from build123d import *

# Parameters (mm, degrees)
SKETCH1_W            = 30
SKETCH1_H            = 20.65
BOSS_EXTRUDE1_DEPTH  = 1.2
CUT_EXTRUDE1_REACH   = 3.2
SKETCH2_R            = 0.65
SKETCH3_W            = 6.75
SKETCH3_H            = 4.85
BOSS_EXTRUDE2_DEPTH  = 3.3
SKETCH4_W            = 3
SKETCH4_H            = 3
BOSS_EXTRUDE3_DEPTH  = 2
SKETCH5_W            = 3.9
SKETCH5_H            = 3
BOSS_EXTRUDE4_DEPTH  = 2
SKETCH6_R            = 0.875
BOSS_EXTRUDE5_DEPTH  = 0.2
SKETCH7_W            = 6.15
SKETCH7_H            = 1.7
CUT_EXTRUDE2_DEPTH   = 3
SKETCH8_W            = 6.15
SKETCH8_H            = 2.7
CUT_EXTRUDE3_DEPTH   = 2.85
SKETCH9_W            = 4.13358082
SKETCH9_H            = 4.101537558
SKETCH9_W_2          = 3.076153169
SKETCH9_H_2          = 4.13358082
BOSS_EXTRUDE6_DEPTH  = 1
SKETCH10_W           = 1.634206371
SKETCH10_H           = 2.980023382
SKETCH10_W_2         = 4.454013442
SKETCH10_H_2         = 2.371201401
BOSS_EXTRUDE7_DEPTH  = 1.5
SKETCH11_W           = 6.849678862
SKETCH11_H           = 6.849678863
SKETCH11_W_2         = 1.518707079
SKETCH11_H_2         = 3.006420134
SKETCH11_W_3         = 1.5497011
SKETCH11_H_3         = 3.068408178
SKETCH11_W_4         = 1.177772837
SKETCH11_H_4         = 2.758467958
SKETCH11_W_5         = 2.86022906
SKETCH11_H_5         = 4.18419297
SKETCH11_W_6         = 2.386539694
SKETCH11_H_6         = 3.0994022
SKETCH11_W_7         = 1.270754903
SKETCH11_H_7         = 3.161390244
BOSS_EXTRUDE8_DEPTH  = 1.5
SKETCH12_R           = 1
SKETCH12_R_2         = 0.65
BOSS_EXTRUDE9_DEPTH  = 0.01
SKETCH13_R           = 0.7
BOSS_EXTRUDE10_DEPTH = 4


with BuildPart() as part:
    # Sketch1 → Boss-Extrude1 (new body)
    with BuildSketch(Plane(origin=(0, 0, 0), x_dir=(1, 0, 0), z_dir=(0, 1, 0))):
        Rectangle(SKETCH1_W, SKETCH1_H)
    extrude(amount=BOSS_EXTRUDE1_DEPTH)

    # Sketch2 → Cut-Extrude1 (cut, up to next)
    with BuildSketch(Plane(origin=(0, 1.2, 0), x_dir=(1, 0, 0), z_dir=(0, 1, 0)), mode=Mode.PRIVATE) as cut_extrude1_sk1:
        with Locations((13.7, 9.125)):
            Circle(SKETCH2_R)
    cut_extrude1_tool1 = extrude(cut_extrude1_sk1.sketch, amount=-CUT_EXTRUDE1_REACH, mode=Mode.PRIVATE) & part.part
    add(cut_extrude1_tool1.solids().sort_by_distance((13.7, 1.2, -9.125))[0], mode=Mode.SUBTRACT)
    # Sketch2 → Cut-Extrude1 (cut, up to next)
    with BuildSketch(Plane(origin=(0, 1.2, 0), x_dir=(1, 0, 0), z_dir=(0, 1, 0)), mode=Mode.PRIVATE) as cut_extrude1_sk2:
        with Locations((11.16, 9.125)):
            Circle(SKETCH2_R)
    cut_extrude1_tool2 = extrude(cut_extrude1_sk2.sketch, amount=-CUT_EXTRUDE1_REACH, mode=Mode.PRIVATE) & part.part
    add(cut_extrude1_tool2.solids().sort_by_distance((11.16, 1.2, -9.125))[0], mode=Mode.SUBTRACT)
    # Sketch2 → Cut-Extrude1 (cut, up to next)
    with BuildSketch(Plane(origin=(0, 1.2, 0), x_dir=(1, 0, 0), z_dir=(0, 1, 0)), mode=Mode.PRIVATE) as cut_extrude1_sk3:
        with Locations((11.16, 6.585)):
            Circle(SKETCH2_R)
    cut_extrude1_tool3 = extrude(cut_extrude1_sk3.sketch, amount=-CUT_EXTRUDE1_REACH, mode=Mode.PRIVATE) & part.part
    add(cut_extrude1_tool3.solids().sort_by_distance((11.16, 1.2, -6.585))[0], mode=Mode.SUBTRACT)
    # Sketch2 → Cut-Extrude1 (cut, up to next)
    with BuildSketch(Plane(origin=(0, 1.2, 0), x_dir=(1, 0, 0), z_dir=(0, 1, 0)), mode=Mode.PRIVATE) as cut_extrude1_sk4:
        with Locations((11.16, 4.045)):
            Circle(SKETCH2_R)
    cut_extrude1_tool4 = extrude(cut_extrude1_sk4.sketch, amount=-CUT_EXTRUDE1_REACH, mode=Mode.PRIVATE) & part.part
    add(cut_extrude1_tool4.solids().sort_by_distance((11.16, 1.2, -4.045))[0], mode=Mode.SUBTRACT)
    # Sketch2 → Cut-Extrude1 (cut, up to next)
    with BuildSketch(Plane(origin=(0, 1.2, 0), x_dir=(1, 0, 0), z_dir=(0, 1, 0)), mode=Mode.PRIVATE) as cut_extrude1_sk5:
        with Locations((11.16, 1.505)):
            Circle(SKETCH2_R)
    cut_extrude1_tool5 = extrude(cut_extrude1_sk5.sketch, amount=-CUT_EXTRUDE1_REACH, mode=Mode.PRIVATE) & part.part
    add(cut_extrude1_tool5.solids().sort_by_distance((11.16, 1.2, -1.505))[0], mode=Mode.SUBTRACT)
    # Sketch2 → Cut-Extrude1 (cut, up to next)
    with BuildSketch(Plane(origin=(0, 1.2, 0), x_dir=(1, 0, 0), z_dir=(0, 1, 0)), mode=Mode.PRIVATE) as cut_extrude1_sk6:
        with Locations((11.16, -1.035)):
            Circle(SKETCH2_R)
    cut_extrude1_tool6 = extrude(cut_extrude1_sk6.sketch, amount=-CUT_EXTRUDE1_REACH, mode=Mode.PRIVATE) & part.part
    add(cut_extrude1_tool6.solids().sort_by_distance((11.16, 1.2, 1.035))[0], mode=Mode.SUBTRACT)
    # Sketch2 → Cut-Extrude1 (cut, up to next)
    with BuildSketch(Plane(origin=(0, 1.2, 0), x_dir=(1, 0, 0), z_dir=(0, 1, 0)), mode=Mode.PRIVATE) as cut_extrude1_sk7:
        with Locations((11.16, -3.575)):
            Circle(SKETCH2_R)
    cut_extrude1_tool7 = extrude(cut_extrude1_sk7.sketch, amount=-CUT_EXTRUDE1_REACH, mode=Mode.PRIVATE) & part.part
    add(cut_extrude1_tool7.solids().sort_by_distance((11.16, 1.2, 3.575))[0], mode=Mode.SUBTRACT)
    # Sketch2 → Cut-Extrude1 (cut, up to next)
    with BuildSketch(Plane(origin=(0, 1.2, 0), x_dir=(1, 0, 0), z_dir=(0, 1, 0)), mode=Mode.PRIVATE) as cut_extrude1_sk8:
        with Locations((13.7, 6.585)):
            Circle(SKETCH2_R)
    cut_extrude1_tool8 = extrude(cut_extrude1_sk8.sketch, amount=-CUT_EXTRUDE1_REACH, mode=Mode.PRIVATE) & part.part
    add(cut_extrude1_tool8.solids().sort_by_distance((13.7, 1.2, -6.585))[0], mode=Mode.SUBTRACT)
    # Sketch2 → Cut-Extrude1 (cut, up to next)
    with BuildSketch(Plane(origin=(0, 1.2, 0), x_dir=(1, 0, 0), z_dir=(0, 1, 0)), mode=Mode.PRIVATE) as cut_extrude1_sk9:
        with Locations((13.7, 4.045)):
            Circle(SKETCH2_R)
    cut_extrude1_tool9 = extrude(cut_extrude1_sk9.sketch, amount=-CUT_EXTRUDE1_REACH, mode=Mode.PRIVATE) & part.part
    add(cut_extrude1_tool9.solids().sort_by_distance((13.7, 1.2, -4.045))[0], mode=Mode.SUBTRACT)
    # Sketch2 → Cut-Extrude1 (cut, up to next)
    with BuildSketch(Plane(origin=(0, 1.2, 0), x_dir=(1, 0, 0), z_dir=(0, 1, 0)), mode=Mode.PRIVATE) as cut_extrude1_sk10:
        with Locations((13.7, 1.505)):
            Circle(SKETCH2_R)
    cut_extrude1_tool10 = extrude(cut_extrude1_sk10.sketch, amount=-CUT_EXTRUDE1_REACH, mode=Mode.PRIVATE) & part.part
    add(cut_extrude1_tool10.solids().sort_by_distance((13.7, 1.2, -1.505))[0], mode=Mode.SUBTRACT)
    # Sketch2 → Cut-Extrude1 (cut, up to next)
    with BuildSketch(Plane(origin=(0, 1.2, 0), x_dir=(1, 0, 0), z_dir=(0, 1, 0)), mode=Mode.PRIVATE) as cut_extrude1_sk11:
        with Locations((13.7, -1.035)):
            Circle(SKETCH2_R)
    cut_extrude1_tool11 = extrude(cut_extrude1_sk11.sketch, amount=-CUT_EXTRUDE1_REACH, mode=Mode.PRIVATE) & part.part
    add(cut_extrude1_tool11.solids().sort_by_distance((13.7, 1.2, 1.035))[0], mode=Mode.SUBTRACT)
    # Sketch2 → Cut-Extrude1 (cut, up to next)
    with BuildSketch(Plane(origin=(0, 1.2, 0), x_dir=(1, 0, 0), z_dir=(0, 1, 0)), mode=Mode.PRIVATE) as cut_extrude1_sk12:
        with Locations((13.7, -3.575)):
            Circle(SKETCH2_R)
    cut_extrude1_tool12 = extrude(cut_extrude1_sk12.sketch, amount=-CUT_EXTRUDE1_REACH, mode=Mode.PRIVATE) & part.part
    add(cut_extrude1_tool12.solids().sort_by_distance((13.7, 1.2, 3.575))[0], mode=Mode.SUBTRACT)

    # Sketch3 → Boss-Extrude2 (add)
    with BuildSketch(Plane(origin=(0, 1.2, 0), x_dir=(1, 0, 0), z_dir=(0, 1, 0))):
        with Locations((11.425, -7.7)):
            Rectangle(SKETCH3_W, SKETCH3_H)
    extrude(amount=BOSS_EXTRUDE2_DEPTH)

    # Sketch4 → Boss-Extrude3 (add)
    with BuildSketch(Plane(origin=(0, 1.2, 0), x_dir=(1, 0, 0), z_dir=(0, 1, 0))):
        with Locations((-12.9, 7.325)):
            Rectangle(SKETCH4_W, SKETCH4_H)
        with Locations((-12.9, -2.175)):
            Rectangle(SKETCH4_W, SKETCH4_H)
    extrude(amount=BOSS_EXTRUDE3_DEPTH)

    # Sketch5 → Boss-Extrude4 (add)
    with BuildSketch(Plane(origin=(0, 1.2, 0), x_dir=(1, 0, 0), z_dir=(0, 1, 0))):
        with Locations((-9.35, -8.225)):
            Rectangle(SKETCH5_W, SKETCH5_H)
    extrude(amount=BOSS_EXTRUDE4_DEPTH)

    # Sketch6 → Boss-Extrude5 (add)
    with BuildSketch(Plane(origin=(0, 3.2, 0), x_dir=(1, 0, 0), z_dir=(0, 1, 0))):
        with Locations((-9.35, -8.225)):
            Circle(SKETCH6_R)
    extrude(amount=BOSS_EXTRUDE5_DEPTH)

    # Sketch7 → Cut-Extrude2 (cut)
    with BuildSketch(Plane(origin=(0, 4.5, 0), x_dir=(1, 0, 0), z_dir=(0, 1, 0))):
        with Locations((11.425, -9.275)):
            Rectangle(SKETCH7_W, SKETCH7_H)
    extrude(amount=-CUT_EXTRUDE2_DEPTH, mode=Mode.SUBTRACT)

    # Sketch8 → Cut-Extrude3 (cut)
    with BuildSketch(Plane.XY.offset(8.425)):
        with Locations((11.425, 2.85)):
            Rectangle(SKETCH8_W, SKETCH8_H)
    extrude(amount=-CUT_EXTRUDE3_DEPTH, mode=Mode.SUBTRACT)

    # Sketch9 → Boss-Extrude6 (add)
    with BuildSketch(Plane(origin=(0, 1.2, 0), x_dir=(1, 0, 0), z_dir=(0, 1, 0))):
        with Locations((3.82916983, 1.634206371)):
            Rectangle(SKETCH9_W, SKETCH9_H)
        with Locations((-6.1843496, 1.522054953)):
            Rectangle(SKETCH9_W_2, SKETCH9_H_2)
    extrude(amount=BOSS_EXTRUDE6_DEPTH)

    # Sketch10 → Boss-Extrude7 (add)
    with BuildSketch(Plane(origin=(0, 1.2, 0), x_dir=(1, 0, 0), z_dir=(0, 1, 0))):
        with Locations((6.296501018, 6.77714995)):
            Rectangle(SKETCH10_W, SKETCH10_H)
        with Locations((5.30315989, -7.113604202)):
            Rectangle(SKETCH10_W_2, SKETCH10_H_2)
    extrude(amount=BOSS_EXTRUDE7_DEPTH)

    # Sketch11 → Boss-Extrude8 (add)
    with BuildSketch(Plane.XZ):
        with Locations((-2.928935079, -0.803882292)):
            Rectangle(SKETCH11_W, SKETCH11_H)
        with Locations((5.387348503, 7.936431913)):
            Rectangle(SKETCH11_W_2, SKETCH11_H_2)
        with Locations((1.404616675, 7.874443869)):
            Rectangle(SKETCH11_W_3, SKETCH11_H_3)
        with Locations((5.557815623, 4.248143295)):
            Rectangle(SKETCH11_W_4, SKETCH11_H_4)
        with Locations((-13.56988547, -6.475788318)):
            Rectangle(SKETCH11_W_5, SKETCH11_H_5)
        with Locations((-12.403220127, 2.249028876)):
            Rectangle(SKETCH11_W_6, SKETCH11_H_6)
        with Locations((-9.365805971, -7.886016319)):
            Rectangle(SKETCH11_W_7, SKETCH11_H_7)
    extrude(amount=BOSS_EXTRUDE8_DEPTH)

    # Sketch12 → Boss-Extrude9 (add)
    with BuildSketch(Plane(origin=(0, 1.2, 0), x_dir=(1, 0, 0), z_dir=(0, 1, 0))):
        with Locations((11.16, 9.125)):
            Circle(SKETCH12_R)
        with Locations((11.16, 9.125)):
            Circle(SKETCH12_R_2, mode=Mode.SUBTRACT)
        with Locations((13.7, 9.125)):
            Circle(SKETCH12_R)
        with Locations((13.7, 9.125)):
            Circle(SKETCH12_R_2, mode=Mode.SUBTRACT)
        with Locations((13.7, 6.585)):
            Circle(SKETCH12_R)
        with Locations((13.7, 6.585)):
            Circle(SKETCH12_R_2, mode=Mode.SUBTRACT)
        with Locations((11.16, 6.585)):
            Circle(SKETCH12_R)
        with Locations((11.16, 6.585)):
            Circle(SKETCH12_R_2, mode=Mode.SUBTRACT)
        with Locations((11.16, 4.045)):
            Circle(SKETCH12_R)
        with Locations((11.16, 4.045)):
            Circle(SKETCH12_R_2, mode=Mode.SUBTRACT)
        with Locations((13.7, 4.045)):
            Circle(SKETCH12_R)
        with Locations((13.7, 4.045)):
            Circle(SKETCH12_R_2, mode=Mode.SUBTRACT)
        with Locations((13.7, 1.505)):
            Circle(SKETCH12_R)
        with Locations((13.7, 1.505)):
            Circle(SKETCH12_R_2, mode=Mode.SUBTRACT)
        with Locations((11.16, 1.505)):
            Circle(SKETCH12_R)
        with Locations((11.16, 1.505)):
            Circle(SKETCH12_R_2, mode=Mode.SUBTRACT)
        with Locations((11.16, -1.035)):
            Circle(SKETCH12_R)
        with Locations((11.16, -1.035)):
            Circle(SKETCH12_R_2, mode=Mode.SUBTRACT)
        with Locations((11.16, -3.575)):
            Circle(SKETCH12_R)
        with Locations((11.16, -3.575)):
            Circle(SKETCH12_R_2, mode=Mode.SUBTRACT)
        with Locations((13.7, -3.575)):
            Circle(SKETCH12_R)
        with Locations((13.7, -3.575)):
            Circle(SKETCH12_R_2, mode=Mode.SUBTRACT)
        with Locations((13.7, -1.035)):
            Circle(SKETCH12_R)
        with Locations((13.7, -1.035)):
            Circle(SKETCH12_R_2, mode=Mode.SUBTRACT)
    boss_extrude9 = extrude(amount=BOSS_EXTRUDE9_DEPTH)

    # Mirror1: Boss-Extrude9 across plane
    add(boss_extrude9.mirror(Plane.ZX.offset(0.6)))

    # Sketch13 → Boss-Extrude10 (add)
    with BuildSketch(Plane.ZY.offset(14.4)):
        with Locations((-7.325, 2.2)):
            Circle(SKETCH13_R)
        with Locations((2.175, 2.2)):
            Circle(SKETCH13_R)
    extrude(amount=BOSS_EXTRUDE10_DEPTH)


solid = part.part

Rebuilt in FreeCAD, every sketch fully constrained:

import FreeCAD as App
import Part
import Sketcher
from FreeCAD import Vector

doc = App.newDocument("Part")
body = doc.addObject("PartDesign::Body", "Body")

sketch1 = body.newObject("Sketcher::SketchObject", "Sketch")
sketch1.AttachmentSupport = (doc.getObject("XZ_Plane"), [""])
sketch1.MapMode = "FlatFace"
sketch1.addGeometry([
    Part.LineSegment(Vector(-15, -10, 0), Vector(-15, 10, 0)),
    Part.LineSegment(Vector(-15, 10, 0), Vector(15, 10, 0)),
    Part.LineSegment(Vector(15, 10, 0), Vector(15, -10, 0)),
    Part.LineSegment(Vector(15, -10, 0), Vector(-15, -10, 0)),
], False)
sketch1.addConstraint([
    Sketcher.Constraint("Coincident", 0, 2, 1, 1),
    Sketcher.Constraint("Coincident", 1, 2, 2, 1),
    Sketcher.Constraint("Coincident", 2, 2, 3, 1),
    Sketcher.Constraint("Coincident", 3, 2, 0, 1),
    Sketcher.Constraint("Vertical", 0),
    Sketcher.Constraint("Horizontal", 1),
    Sketcher.Constraint("Vertical", 2),
    Sketcher.Constraint("Horizontal", 3),
    Sketcher.Constraint("Symmetric", 0, 2, 2, 2, -1, 1),
    Sketcher.Constraint("DistanceX", 1, 1, 1, 2, 30.0),
    Sketcher.Constraint("DistanceY", 0, 1, 0, 2, 20.65),
])
pad1 = body.newObject("PartDesign::Pad", "Pad")
pad1.Profile = sketch1
pad1.Length = 1.2
pad1.Reversed = True

sketch2 = body.newObject("Sketcher::SketchObject", "Sketch001")
sketch2.AttachmentSupport = (doc.getObject("XZ_Plane"), [""])
sketch2.MapMode = "FlatFace"
sketch2.AttachmentOffset = App.Placement(Vector(0, 0, -1.2), App.Rotation())
sketch2.addGeometry(Part.Circle(Vector(13.7, -9.1, 0), Vector(0, 0, 1), 0.7), False)
sketch2.addConstraint([
    Sketcher.Constraint("Diameter", 0, 1.3),
    Sketcher.Constraint("DistanceX", -1, 1, 0, 3, 13.7),
    Sketcher.Constraint("DistanceY", 0, 3, -1, 1, 9.125),
])
pocket1 = body.newObject("PartDesign::Pocket", "Pocket")
pocket1.Profile = sketch2
pocket1.Type = "UpToFirst"
pocket1.Reversed = True

sketch3 = body.newObject("Sketcher::SketchObject", "Sketch002")
sketch3.AttachmentSupport = (doc.getObject("XZ_Plane"), [""])
sketch3.MapMode = "FlatFace"
sketch3.AttachmentOffset = App.Placement(Vector(0, 0, -1.2), App.Rotation())
sketch3.addGeometry(Part.Circle(Vector(11.2, -9.1, 0), Vector(0, 0, 1), 0.7), False)
sketch3.addConstraint([
    Sketcher.Constraint("Diameter", 0, 1.3),
    Sketcher.Constraint("DistanceX", -1, 1, 0, 3, 11.16),
    Sketcher.Constraint("DistanceY", 0, 3, -1, 1, 9.125),
])
pocket2 = body.newObject("PartDesign::Pocket", "Pocket001")
pocket2.Profile = sketch3
pocket2.Type = "UpToFirst"
pocket2.Reversed = True

sketch4 = body.newObject("Sketcher::SketchObject", "Sketch003")
sketch4.AttachmentSupport = (doc.getObject("XZ_Plane"), [""])
sketch4.MapMode = "FlatFace"
sketch4.AttachmentOffset = App.Placement(Vector(0, 0, -1.2), App.Rotation())
sketch4.addGeometry(Part.Circle(Vector(11.2, -6.6, 0), Vector(0, 0, 1), 0.7), False)
sketch4.addConstraint([
    Sketcher.Constraint("Diameter", 0, 1.3),
    Sketcher.Constraint("DistanceX", -1, 1, 0, 3, 11.16),
    Sketcher.Constraint("DistanceY", 0, 3, -1, 1, 6.585),
])
pocket3 = body.newObject("PartDesign::Pocket", "Pocket002")
pocket3.Profile = sketch4
pocket3.Type = "UpToFirst"
pocket3.Reversed = True

sketch5 = body.newObject("Sketcher::SketchObject", "Sketch004")
sketch5.AttachmentSupport = (doc.getObject("XZ_Plane"), [""])
sketch5.MapMode = "FlatFace"
sketch5.AttachmentOffset = App.Placement(Vector(0, 0, -1.2), App.Rotation())
sketch5.addGeometry(Part.Circle(Vector(11.2, -4, 0), Vector(0, 0, 1), 0.7), False)
sketch5.addConstraint([
    Sketcher.Constraint("Diameter", 0, 1.3),
    Sketcher.Constraint("DistanceX", -1, 1, 0, 3, 11.16),
    Sketcher.Constraint("DistanceY", 0, 3, -1, 1, 4.045),
])
pocket4 = body.newObject("PartDesign::Pocket", "Pocket003")
pocket4.Profile = sketch5
pocket4.Type = "UpToFirst"
pocket4.Reversed = True

sketch6 = body.newObject("Sketcher::SketchObject", "Sketch005")
sketch6.AttachmentSupport = (doc.getObject("XZ_Plane"), [""])
sketch6.MapMode = "FlatFace"
sketch6.AttachmentOffset = App.Placement(Vector(0, 0, -1.2), App.Rotation())
sketch6.addGeometry(Part.Circle(Vector(11.2, -1.5, 0), Vector(0, 0, 1), 0.7), False)
sketch6.addConstraint([
    Sketcher.Constraint("Diameter", 0, 1.3),
    Sketcher.Constraint("DistanceX", -1, 1, 0, 3, 11.16),
    Sketcher.Constraint("DistanceY", 0, 3, -1, 1, 1.505),
])
pocket5 = body.newObject("PartDesign::Pocket", "Pocket004")
pocket5.Profile = sketch6
pocket5.Type = "UpToFirst"
pocket5.Reversed = True

sketch7 = body.newObject("Sketcher::SketchObject", "Sketch006")
sketch7.AttachmentSupport = (doc.getObject("XZ_Plane"), [""])
sketch7.MapMode = "FlatFace"
sketch7.AttachmentOffset = App.Placement(Vector(0, 0, -1.2), App.Rotation())
sketch7.addGeometry(Part.Circle(Vector(11.2, 1, 0), Vector(0, 0, 1), 0.7), False)
sketch7.addConstraint([
    Sketcher.Constraint("Diameter", 0, 1.3),
    Sketcher.Constraint("DistanceX", -1, 1, 0, 3, 11.16),
    Sketcher.Constraint("DistanceY", -1, 1, 0, 3, 1.035),
])
pocket6 = body.newObject("PartDesign::Pocket", "Pocket005")
pocket6.Profile = sketch7
pocket6.Type = "UpToFirst"
pocket6.Reversed = True

sketch8 = body.newObject("Sketcher::SketchObject", "Sketch007")
sketch8.AttachmentSupport = (doc.getObject("XZ_Plane"), [""])
sketch8.MapMode = "FlatFace"
sketch8.AttachmentOffset = App.Placement(Vector(0, 0, -1.2), App.Rotation())
sketch8.addGeometry(Part.Circle(Vector(11.2, 3.6, 0), Vector(0, 0, 1), 0.7), False)
sketch8.addConstraint([
    Sketcher.Constraint("Diameter", 0, 1.3),
    Sketcher.Constraint("DistanceX", -1, 1, 0, 3, 11.16),
    Sketcher.Constraint("DistanceY", -1, 1, 0, 3, 3.575),
])
pocket7 = body.newObject("PartDesign::Pocket", "Pocket006")
pocket7.Profile = sketch8
pocket7.Type = "UpToFirst"
pocket7.Reversed = True

sketch9 = body.newObject("Sketcher::SketchObject", "Sketch008")
sketch9.AttachmentSupport = (doc.getObject("XZ_Plane"), [""])
sketch9.MapMode = "FlatFace"
sketch9.AttachmentOffset = App.Placement(Vector(0, 0, -1.2), App.Rotation())
sketch9.addGeometry(Part.Circle(Vector(13.7, -6.6, 0), Vector(0, 0, 1), 0.7), False)
sketch9.addConstraint([
    Sketcher.Constraint("Diameter", 0, 1.3),
    Sketcher.Constraint("DistanceX", -1, 1, 0, 3, 13.7),
    Sketcher.Constraint("DistanceY", 0, 3, -1, 1, 6.585),
])
pocket8 = body.newObject("PartDesign::Pocket", "Pocket007")
pocket8.Profile = sketch9
pocket8.Type = "UpToFirst"
pocket8.Reversed = True

sketch10 = body.newObject("Sketcher::SketchObject", "Sketch009")
sketch10.AttachmentSupport = (doc.getObject("XZ_Plane"), [""])
sketch10.MapMode = "FlatFace"
sketch10.AttachmentOffset = App.Placement(Vector(0, 0, -1.2), App.Rotation())
sketch10.addGeometry(Part.Circle(Vector(13.7, -4, 0), Vector(0, 0, 1), 0.7), False)
sketch10.addConstraint([
    Sketcher.Constraint("Diameter", 0, 1.3),
    Sketcher.Constraint("DistanceX", -1, 1, 0, 3, 13.7),
    Sketcher.Constraint("DistanceY", 0, 3, -1, 1, 4.045),
])
pocket9 = body.newObject("PartDesign::Pocket", "Pocket008")
pocket9.Profile = sketch10
pocket9.Type = "UpToFirst"
pocket9.Reversed = True

sketch11 = body.newObject("Sketcher::SketchObject", "Sketch010")
sketch11.AttachmentSupport = (doc.getObject("XZ_Plane"), [""])
sketch11.MapMode = "FlatFace"
sketch11.AttachmentOffset = App.Placement(Vector(0, 0, -1.2), App.Rotation())
sketch11.addGeometry(Part.Circle(Vector(13.7, -1.5, 0), Vector(0, 0, 1), 0.7), False)
sketch11.addConstraint([
    Sketcher.Constraint("Diameter", 0, 1.3),
    Sketcher.Constraint("DistanceX", -1, 1, 0, 3, 13.7),
    Sketcher.Constraint("DistanceY", 0, 3, -1, 1, 1.505),
])
pocket10 = body.newObject("PartDesign::Pocket", "Pocket009")
pocket10.Profile = sketch11
pocket10.Type = "UpToFirst"
pocket10.Reversed = True

sketch12 = body.newObject("Sketcher::SketchObject", "Sketch011")
sketch12.AttachmentSupport = (doc.getObject("XZ_Plane"), [""])
sketch12.MapMode = "FlatFace"
sketch12.AttachmentOffset = App.Placement(Vector(0, 0, -1.2), App.Rotation())
sketch12.addGeometry(Part.Circle(Vector(13.7, 1, 0), Vector(0, 0, 1), 0.7), False)
sketch12.addConstraint([
    Sketcher.Constraint("Diameter", 0, 1.3),
    Sketcher.Constraint("DistanceX", -1, 1, 0, 3, 13.7),
    Sketcher.Constraint("DistanceY", -1, 1, 0, 3, 1.035),
])
pocket11 = body.newObject("PartDesign::Pocket", "Pocket010")
pocket11.Profile = sketch12
pocket11.Type = "UpToFirst"
pocket11.Reversed = True

sketch13 = body.newObject("Sketcher::SketchObject", "Sketch012")
sketch13.AttachmentSupport = (doc.getObject("XZ_Plane"), [""])
sketch13.MapMode = "FlatFace"
sketch13.AttachmentOffset = App.Placement(Vector(0, 0, -1.2), App.Rotation())
sketch13.addGeometry(Part.Circle(Vector(13.7, 3.6, 0), Vector(0, 0, 1), 0.7), False)
sketch13.addConstraint([
    Sketcher.Constraint("Diameter", 0, 1.3),
    Sketcher.Constraint("DistanceX", -1, 1, 0, 3, 13.7),
    Sketcher.Constraint("DistanceY", -1, 1, 0, 3, 3.575),
])
pocket12 = body.newObject("PartDesign::Pocket", "Pocket011")
pocket12.Profile = sketch13
pocket12.Type = "UpToFirst"
pocket12.Reversed = True

sketch14 = body.newObject("Sketcher::SketchObject", "Sketch013")
sketch14.AttachmentSupport = (doc.getObject("XZ_Plane"), [""])
sketch14.MapMode = "FlatFace"
sketch14.AttachmentOffset = App.Placement(Vector(0, 0, -1.2), App.Rotation())
sketch14.addGeometry([
    Part.LineSegment(Vector(8.1, 5.3, 0), Vector(8.1, 10.1, 0)),
    Part.LineSegment(Vector(8.1, 10.1, 0), Vector(14.8, 10.1, 0)),
    Part.LineSegment(Vector(14.8, 10.1, 0), Vector(14.8, 5.3, 0)),
    Part.LineSegment(Vector(14.8, 5.3, 0), Vector(8.1, 5.3, 0)),
], False)
sketch14.addConstraint([
    Sketcher.Constraint("Coincident", 0, 2, 1, 1),
    Sketcher.Constraint("Coincident", 1, 2, 2, 1),
    Sketcher.Constraint("Coincident", 2, 2, 3, 1),
    Sketcher.Constraint("Coincident", 3, 2, 0, 1),
    Sketcher.Constraint("Vertical", 0),
    Sketcher.Constraint("Horizontal", 1),
    Sketcher.Constraint("Vertical", 2),
    Sketcher.Constraint("Horizontal", 3),
    Sketcher.Constraint("DistanceX", 1, 1, 1, 2, 6.75),
    Sketcher.Constraint("DistanceY", 0, 1, 0, 2, 4.85),
    Sketcher.Constraint("DistanceX", -1, 1, 1, 2, 14.8),
    Sketcher.Constraint("DistanceY", -1, 1, 0, 2, 10.125),
])
pad2 = body.newObject("PartDesign::Pad", "Pad001")
pad2.Profile = sketch14
pad2.Length = 3.3
pad2.Reversed = True

sketch15 = body.newObject("Sketcher::SketchObject", "Sketch014")
sketch15.AttachmentSupport = (doc.getObject("XZ_Plane"), [""])
sketch15.MapMode = "FlatFace"
sketch15.AttachmentOffset = App.Placement(Vector(0, 0, -1.2), App.Rotation())
sketch15.addGeometry([
    Part.LineSegment(Vector(-14.4, -8.8, 0), Vector(-14.4, -5.8, 0)),
    Part.LineSegment(Vector(-14.4, -5.8, 0), Vector(-11.4, -5.8, 0)),
    Part.LineSegment(Vector(-11.4, -5.8, 0), Vector(-11.4, -8.8, 0)),
    Part.LineSegment(Vector(-11.4, -8.8, 0), Vector(-14.4, -8.8, 0)),
    Part.LineSegment(Vector(-14.4, 0.7, 0), Vector(-14.4, 3.7, 0)),
    Part.LineSegment(Vector(-14.4, 3.7, 0), Vector(-11.4, 3.7, 0)),
    Part.LineSegment(Vector(-11.4, 3.7, 0), Vector(-11.4, 0.7, 0)),
    Part.LineSegment(Vector(-11.4, 0.7, 0), Vector(-14.4, 0.7, 0)),
], False)
sketch15.addConstraint([
    Sketcher.Constraint("Coincident", 0, 2, 1, 1),
    Sketcher.Constraint("Coincident", 1, 2, 2, 1),
    Sketcher.Constraint("Coincident", 2, 2, 3, 1),
    Sketcher.Constraint("Coincident", 3, 2, 0, 1),
    Sketcher.Constraint("Coincident", 4, 2, 5, 1),
    Sketcher.Constraint("Coincident", 5, 2, 6, 1),
    Sketcher.Constraint("Coincident", 6, 2, 7, 1),
    Sketcher.Constraint("Coincident", 7, 2, 4, 1),
    Sketcher.Constraint("Vertical", 0),
    Sketcher.Constraint("Horizontal", 1),
    Sketcher.Constraint("Vertical", 2),
    Sketcher.Constraint("Horizontal", 3),
    Sketcher.Constraint("Vertical", 4),
    Sketcher.Constraint("Horizontal", 5),
    Sketcher.Constraint("Vertical", 6),
    Sketcher.Constraint("Horizontal", 7),
    Sketcher.Constraint("Vertical", 3, 2, 4, 2),
    Sketcher.Constraint("Vertical", 2, 2, 5, 2),
    Sketcher.Constraint("Equal", 7, 0),
    Sketcher.Constraint("Equal", 2, 4),
    Sketcher.Constraint("DistanceX", 1, 1, 1, 2, 3.0),
    Sketcher.Constraint("DistanceX", 0, 2, -1, 1, 14.4),
    Sketcher.Constraint("DistanceY", 0, 2, 4, 2, 9.5),
    Sketcher.Constraint("DistanceY", 0, 2, -1, 1, 5.825),
])
pad3 = body.newObject("PartDesign::Pad", "Pad002")
pad3.Profile = sketch15
pad3.Length = 2
pad3.Reversed = True

sketch16 = body.newObject("Sketcher::SketchObject", "Sketch015")
sketch16.AttachmentSupport = (doc.getObject("XZ_Plane"), [""])
sketch16.MapMode = "FlatFace"
sketch16.AttachmentOffset = App.Placement(Vector(0, 0, -1.2), App.Rotation())
sketch16.addGeometry([
    Part.LineSegment(Vector(-11.3, 6.7, 0), Vector(-11.3, 9.7, 0)),
    Part.LineSegment(Vector(-11.3, 9.7, 0), Vector(-7.4, 9.7, 0)),
    Part.LineSegment(Vector(-7.4, 9.7, 0), Vector(-7.4, 6.7, 0)),
    Part.LineSegment(Vector(-7.4, 6.7, 0), Vector(-11.3, 6.7, 0)),
], False)
sketch16.addConstraint([
    Sketcher.Constraint("Coincident", 0, 2, 1, 1),
    Sketcher.Constraint("Coincident", 1, 2, 2, 1),
    Sketcher.Constraint("Coincident", 2, 2, 3, 1),
    Sketcher.Constraint("Coincident", 3, 2, 0, 1),
    Sketcher.Constraint("Vertical", 0),
    Sketcher.Constraint("Horizontal", 1),
    Sketcher.Constraint("Vertical", 2),
    Sketcher.Constraint("Horizontal", 3),
    Sketcher.Constraint("DistanceY", 0, 1, 0, 2, 3.0),
    Sketcher.Constraint("DistanceX", 1, 1, 1, 2, 3.9),
    Sketcher.Constraint("DistanceX", 0, 2, -1, 1, 11.3),
    Sketcher.Constraint("DistanceY", -1, 1, 0, 2, 9.725),
])
pad4 = body.newObject("PartDesign::Pad", "Pad003")
pad4.Profile = sketch16
pad4.Length = 2
pad4.Reversed = True

sketch17 = body.newObject("Sketcher::SketchObject", "Sketch016")
sketch17.AttachmentSupport = (doc.getObject("XZ_Plane"), [""])
sketch17.MapMode = "FlatFace"
sketch17.AttachmentOffset = App.Placement(Vector(0, 0, -3.2), App.Rotation())
sketch17.addGeometry(Part.Circle(Vector(-9.3, 8.2, 0), Vector(0, 0, 1), 0.9), False)
sketch17.addConstraint([
    Sketcher.Constraint("Diameter", 0, 1.75),
    Sketcher.Constraint("DistanceX", 0, 3, -1, 1, 9.35),
    Sketcher.Constraint("DistanceY", -1, 1, 0, 3, 8.225),
])
pad5 = body.newObject("PartDesign::Pad", "Pad004")
pad5.Profile = sketch17
pad5.Length = 0.2
pad5.Reversed = True

sketch18 = body.newObject("Sketcher::SketchObject", "Sketch017")
sketch18.AttachmentSupport = (doc.getObject("XZ_Plane"), [""])
sketch18.MapMode = "FlatFace"
sketch18.AttachmentOffset = App.Placement(Vector(0, 0, -4.5), App.Rotation())
sketch18.addGeometry([
    Part.LineSegment(Vector(8.3, 8.4, 0), Vector(8.3, 10.1, 0)),
    Part.LineSegment(Vector(8.3, 10.1, 0), Vector(14.5, 10.1, 0)),
    Part.LineSegment(Vector(14.5, 10.1, 0), Vector(14.5, 8.4, 0)),
    Part.LineSegment(Vector(14.5, 8.4, 0), Vector(8.3, 8.4, 0)),
], False)
sketch18.addConstraint([
    Sketcher.Constraint("Coincident", 0, 2, 1, 1),
    Sketcher.Constraint("Coincident", 1, 2, 2, 1),
    Sketcher.Constraint("Coincident", 2, 2, 3, 1),
    Sketcher.Constraint("Coincident", 3, 2, 0, 1),
    Sketcher.Constraint("Vertical", 0),
    Sketcher.Constraint("Horizontal", 1),
    Sketcher.Constraint("Vertical", 2),
    Sketcher.Constraint("Horizontal", 3),
    Sketcher.Constraint("DistanceY", 0, 1, 0, 2, 1.7),
    Sketcher.Constraint("DistanceX", 1, 1, 1, 2, 6.15),
    Sketcher.Constraint("DistanceX", -1, 1, 1, 2, 14.5),
    Sketcher.Constraint("DistanceY", -1, 1, 0, 2, 10.125),
])
pocket13 = body.newObject("PartDesign::Pocket", "Pocket012")
pocket13.Profile = sketch18
pocket13.Length = 3
pocket13.Reversed = True

sketch19 = body.newObject("Sketcher::SketchObject", "Sketch018")
sketch19.AttachmentSupport = (doc.getObject("XY_Plane"), [""])
sketch19.MapMode = "FlatFace"
sketch19.AttachmentOffset = App.Placement(Vector(0, 0, 8.425), App.Rotation())
sketch19.addGeometry([
    Part.LineSegment(Vector(8.3, 4.2, 0), Vector(8.3, 1.5, 0)),
    Part.LineSegment(Vector(8.3, 1.5, 0), Vector(14.5, 1.5, 0)),
    Part.LineSegment(Vector(14.5, 1.5, 0), Vector(14.5, 4.2, 0)),
    Part.LineSegment(Vector(14.5, 4.2, 0), Vector(8.3, 4.2, 0)),
], False)
sketch19.addConstraint([
    Sketcher.Constraint("Coincident", 0, 2, 1, 1),
    Sketcher.Constraint("Coincident", 1, 2, 2, 1),
    Sketcher.Constraint("Coincident", 2, 2, 3, 1),
    Sketcher.Constraint("Coincident", 3, 2, 0, 1),
    Sketcher.Constraint("Vertical", 0),
    Sketcher.Constraint("Horizontal", 1),
    Sketcher.Constraint("Vertical", 2),
    Sketcher.Constraint("Horizontal", 3),
    Sketcher.Constraint("DistanceY", 0, 2, 0, 1, 2.7),
    Sketcher.Constraint("DistanceX", 1, 1, 1, 2, 6.15),
    Sketcher.Constraint("DistanceY", -1, 1, 0, 2, 1.5),
    Sketcher.Constraint("DistanceX", -1, 1, 1, 2, 14.5),
])
pocket14 = body.newObject("PartDesign::Pocket", "Pocket013")
pocket14.Profile = sketch19
pocket14.Length = 2.85

sketch20 = body.newObject("Sketcher::SketchObject", "Sketch019")
sketch20.AttachmentSupport = (doc.getObject("XZ_Plane"), [""])
sketch20.MapMode = "FlatFace"
sketch20.AttachmentOffset = App.Placement(Vector(0, 0, -1.2), App.Rotation())
sketch20.addGeometry([
    Part.LineSegment(Vector(1.8, -3.7, 0), Vector(1.8, 0.4, 0)),
    Part.LineSegment(Vector(1.8, 0.4, 0), Vector(5.9, 0.4, 0)),
    Part.LineSegment(Vector(5.9, 0.4, 0), Vector(5.9, -3.7, 0)),
    Part.LineSegment(Vector(5.9, -3.7, 0), Vector(1.8, -3.7, 0)),
    Part.LineSegment(Vector(-7.7, -3.6, 0), Vector(-7.7, 0.5, 0)),
    Part.LineSegment(Vector(-7.7, 0.5, 0), Vector(-4.6, 0.5, 0)),
    Part.LineSegment(Vector(-4.6, 0.5, 0), Vector(-4.6, -3.6, 0)),
    Part.LineSegment(Vector(-4.6, -3.6, 0), Vector(-7.7, -3.6, 0)),
], False)
sketch20.addConstraint([
    Sketcher.Constraint("Coincident", 0, 2, 1, 1),
    Sketcher.Constraint("Coincident", 1, 2, 2, 1),
    Sketcher.Constraint("Coincident", 2, 2, 3, 1),
    Sketcher.Constraint("Coincident", 3, 2, 0, 1),
    Sketcher.Constraint("Coincident", 4, 2, 5, 1),
    Sketcher.Constraint("Coincident", 5, 2, 6, 1),
    Sketcher.Constraint("Coincident", 6, 2, 7, 1),
    Sketcher.Constraint("Coincident", 7, 2, 4, 1),
    Sketcher.Constraint("Vertical", 0),
    Sketcher.Constraint("Horizontal", 1),
    Sketcher.Constraint("Vertical", 2),
    Sketcher.Constraint("Horizontal", 3),
    Sketcher.Constraint("Vertical", 4),
    Sketcher.Constraint("Horizontal", 5),
    Sketcher.Constraint("Vertical", 6),
    Sketcher.Constraint("Horizontal", 7),
    Sketcher.Constraint("Equal", 3, 4),
    Sketcher.Constraint("DistanceX", 1, 1, 1, 2, 4.133581),
    Sketcher.Constraint("DistanceX", 5, 1, 5, 2, 3.076153),
    Sketcher.Constraint("DistanceY", 0, 1, 0, 2, 4.101538),
    Sketcher.Constraint("DistanceX", -1, 1, 0, 2, 1.762379),
    Sketcher.Constraint("DistanceY", 3, 2, 4, 2, 4.229711),
    Sketcher.Constraint("DistanceY", -1, 1, 0, 2, 0.416562),
    Sketcher.Constraint("DistanceX", 4, 2, -1, 1, 7.722426),
])
pad6 = body.newObject("PartDesign::Pad", "Pad005")
pad6.Profile = sketch20
pad6.Length = 1
pad6.Reversed = True

sketch21 = body.newObject("Sketcher::SketchObject", "Sketch020")
sketch21.AttachmentSupport = (doc.getObject("XZ_Plane"), [""])
sketch21.MapMode = "FlatFace"
sketch21.AttachmentOffset = App.Placement(Vector(0, 0, -1.2), App.Rotation())
sketch21.addGeometry([
    Part.LineSegment(Vector(5.5, -8.3, 0), Vector(5.5, -5.3, 0)),
    Part.LineSegment(Vector(5.5, -5.3, 0), Vector(7.1, -5.3, 0)),
    Part.LineSegment(Vector(7.1, -5.3, 0), Vector(7.1, -8.3, 0)),
    Part.LineSegment(Vector(7.1, -8.3, 0), Vector(5.5, -8.3, 0)),
    Part.LineSegment(Vector(3.1, 5.9, 0), Vector(3.1, 8.3, 0)),
    Part.LineSegment(Vector(3.1, 8.3, 0), Vector(7.5, 8.3, 0)),
    Part.LineSegment(Vector(7.5, 8.3, 0), Vector(7.5, 5.9, 0)),
    Part.LineSegment(Vector(7.5, 5.9, 0), Vector(3.1, 5.9, 0)),
], False)
sketch21.addConstraint([
    Sketcher.Constraint("Coincident", 0, 2, 1, 1),
    Sketcher.Constraint("Coincident", 1, 2, 2, 1),
    Sketcher.Constraint("Coincident", 2, 2, 3, 1),
    Sketcher.Constraint("Coincident", 3, 2, 0, 1),
    Sketcher.Constraint("Coincident", 4, 2, 5, 1),
    Sketcher.Constraint("Coincident", 5, 2, 6, 1),
    Sketcher.Constraint("Coincident", 6, 2, 7, 1),
    Sketcher.Constraint("Coincident", 7, 2, 4, 1),
    Sketcher.Constraint("Vertical", 0),
    Sketcher.Constraint("Horizontal", 1),
    Sketcher.Constraint("Vertical", 2),
    Sketcher.Constraint("Horizontal", 3),
    Sketcher.Constraint("Vertical", 4),
    Sketcher.Constraint("Horizontal", 5),
    Sketcher.Constraint("Vertical", 6),
    Sketcher.Constraint("Horizontal", 7),
    Sketcher.Constraint("DistanceY", 4, 1, 4, 2, 2.371201),
    Sketcher.Constraint("DistanceX", 1, 1, 1, 2, 1.634206),
    Sketcher.Constraint("DistanceX", 5, 1, 5, 2, 4.454013),
    Sketcher.Constraint("DistanceY", 0, 1, 0, 2, 2.980023),
    Sketcher.Constraint("DistanceY", 0, 2, -1, 1, 5.287138),
    Sketcher.Constraint("DistanceX", 4, 2, 1, 2, 4.037451),
    Sketcher.Constraint("DistanceY", 1, 2, 6, 2, 11.215142),
    Sketcher.Constraint("DistanceX", -1, 1, 0, 2, 5.479398),
])
pad7 = body.newObject("PartDesign::Pad", "Pad006")
pad7.Profile = sketch21
pad7.Length = 1.5
pad7.Reversed = True

sketch22 = body.newObject("Sketcher::SketchObject", "Sketch021")
sketch22.AttachmentSupport = (doc.getObject("XZ_Plane"), [""])
sketch22.MapMode = "FlatFace"
sketch22.addGeometry([
    Part.LineSegment(Vector(-6.4, 2.6, 0), Vector(-6.4, -4.2, 0)),
    Part.LineSegment(Vector(-6.4, -4.2, 0), Vector(0.5, -4.2, 0)),
    Part.LineSegment(Vector(0.5, -4.2, 0), Vector(0.5, 2.6, 0)),
    Part.LineSegment(Vector(0.5, 2.6, 0), Vector(-6.4, 2.6, 0)),
    Part.LineSegment(Vector(4.6, 9.4, 0), Vector(4.6, 6.4, 0)),
    Part.LineSegment(Vector(4.6, 6.4, 0), Vector(6.1, 6.4, 0)),
    Part.LineSegment(Vector(6.1, 6.4, 0), Vector(6.1, 9.4, 0)),
    Part.LineSegment(Vector(6.1, 9.4, 0), Vector(4.6, 9.4, 0)),
    Part.LineSegment(Vector(0.6, 9.4, 0), Vector(0.6, 6.3, 0)),
    Part.LineSegment(Vector(0.6, 6.3, 0), Vector(2.2, 6.3, 0)),
    Part.LineSegment(Vector(2.2, 6.3, 0), Vector(2.2, 9.4, 0)),
    Part.LineSegment(Vector(2.2, 9.4, 0), Vector(0.6, 9.4, 0)),
    Part.LineSegment(Vector(5, 5.6, 0), Vector(5, 2.9, 0)),
    Part.LineSegment(Vector(5, 2.9, 0), Vector(6.1, 2.9, 0)),
    Part.LineSegment(Vector(6.1, 2.9, 0), Vector(6.1, 5.6, 0)),
    Part.LineSegment(Vector(6.1, 5.6, 0), Vector(5, 5.6, 0)),
    Part.LineSegment(Vector(-15, -4.4, 0), Vector(-15, -8.6, 0)),
    Part.LineSegment(Vector(-15, -8.6, 0), Vector(-12.1, -8.6, 0)),
    Part.LineSegment(Vector(-12.1, -8.6, 0), Vector(-12.1, -4.4, 0)),
    Part.LineSegment(Vector(-12.1, -4.4, 0), Vector(-15, -4.4, 0)),
    Part.LineSegment(Vector(-13.6, 3.8, 0), Vector(-13.6, 0.7, 0)),
    Part.LineSegment(Vector(-13.6, 0.7, 0), Vector(-11.2, 0.7, 0)),
    Part.LineSegment(Vector(-11.2, 0.7, 0), Vector(-11.2, 3.8, 0)),
    Part.LineSegment(Vector(-11.2, 3.8, 0), Vector(-13.6, 3.8, 0)),
    Part.LineSegment(Vector(-10, -6.3, 0), Vector(-10, -9.5, 0)),
    Part.LineSegment(Vector(-10, -9.5, 0), Vector(-8.7, -9.5, 0)),
    Part.LineSegment(Vector(-8.7, -9.5, 0), Vector(-8.7, -6.3, 0)),
    Part.LineSegment(Vector(-8.7, -6.3, 0), Vector(-10, -6.3, 0)),
], False)
sketch22.addConstraint([
    Sketcher.Constraint("Coincident", 0, 2, 1, 1),
    Sketcher.Constraint("Coincident", 1, 2, 2, 1),
    Sketcher.Constraint("Coincident", 2, 2, 3, 1),
    Sketcher.Constraint("Coincident", 3, 2, 0, 1),
    Sketcher.Constraint("Coincident", 4, 2, 5, 1),
    Sketcher.Constraint("Coincident", 5, 2, 6, 1),
    Sketcher.Constraint("Coincident", 6, 2, 7, 1),
    Sketcher.Constraint("Coincident", 7, 2, 4, 1),
    Sketcher.Constraint("Coincident", 8, 2, 9, 1),
    Sketcher.Constraint("Coincident", 9, 2, 10, 1),
    Sketcher.Constraint("Coincident", 10, 2, 11, 1),
    Sketcher.Constraint("Coincident", 11, 2, 8, 1),
    Sketcher.Constraint("Coincident", 12, 2, 13, 1),
    Sketcher.Constraint("Coincident", 13, 2, 14, 1),
    Sketcher.Constraint("Coincident", 14, 2, 15, 1),
    Sketcher.Constraint("Coincident", 15, 2, 12, 1),
    Sketcher.Constraint("Coincident", 16, 2, 17, 1),
    Sketcher.Constraint("Coincident", 17, 2, 18, 1),
    Sketcher.Constraint("Coincident", 18, 2, 19, 1),
    Sketcher.Constraint("Coincident", 19, 2, 16, 1),
    Sketcher.Constraint("Coincident", 20, 2, 21, 1),
    Sketcher.Constraint("Coincident", 21, 2, 22, 1),
    Sketcher.Constraint("Coincident", 22, 2, 23, 1),
    Sketcher.Constraint("Coincident", 23, 2, 20, 1),
    Sketcher.Constraint("Coincident", 24, 2, 25, 1),
    Sketcher.Constraint("Coincident", 25, 2, 26, 1),
    Sketcher.Constraint("Coincident", 26, 2, 27, 1),
    Sketcher.Constraint("Coincident", 27, 2, 24, 1),
    Sketcher.Constraint("Vertical", 0),
    Sketcher.Constraint("Horizontal", 1),
    Sketcher.Constraint("Vertical", 2),
    Sketcher.Constraint("Horizontal", 3),
    Sketcher.Constraint("Vertical", 4),
    Sketcher.Constraint("Horizontal", 5),
    Sketcher.Constraint("Vertical", 6),
    Sketcher.Constraint("Horizontal", 7),
    Sketcher.Constraint("Vertical", 8),
    Sketcher.Constraint("Horizontal", 9),
    Sketcher.Constraint("Vertical", 10),
    Sketcher.Constraint("Horizontal", 11),
    Sketcher.Constraint("Vertical", 12),
    Sketcher.Constraint("Horizontal", 13),
    Sketcher.Constraint("Vertical", 14),
    Sketcher.Constraint("Horizontal", 15),
    Sketcher.Constraint("Vertical", 16),
    Sketcher.Constraint("Horizontal", 17),
    Sketcher.Constraint("Vertical", 18),
    Sketcher.Constraint("Horizontal", 19),
    Sketcher.Constraint("Vertical", 20),
    Sketcher.Constraint("Horizontal", 21),
    Sketcher.Constraint("Vertical", 22),
    Sketcher.Constraint("Horizontal", 23),
    Sketcher.Constraint("Vertical", 24),
    Sketcher.Constraint("Horizontal", 25),
    Sketcher.Constraint("Vertical", 26),
    Sketcher.Constraint("Horizontal", 27),
    Sketcher.Constraint("Vertical", 6, 2, 13, 2),
    Sketcher.Constraint("Equal", 3, 0),
    Sketcher.Constraint("DistanceX", 16, 2, -1, 1, 15.0),
    Sketcher.Constraint("DistanceX", 9, 1, 9, 2, 1.549701),
    Sketcher.Constraint("DistanceX", 1, 1, 1, 2, 6.849679),
    Sketcher.Constraint("DistanceX", 17, 1, 17, 2, 2.860229),
    Sketcher.Constraint("DistanceX", 21, 1, 21, 2, 2.38654),
    Sketcher.Constraint("DistanceY", 4, 2, 4, 1, 3.00642),
    Sketcher.Constraint("DistanceY", 8, 2, 8, 1, 3.068408),
    Sketcher.Constraint("DistanceY", 24, 2, 24, 1, 3.16139),
    Sketcher.Constraint("DistanceY", 26, 2, 0, 2, 2.076599),
    Sketcher.Constraint("DistanceX", 5, 1, 5, 2, 1.518707),
    Sketcher.Constraint("DistanceX", 13, 1, 13, 2, 1.177773),
    Sketcher.Constraint("DistanceX", 25, 1, 25, 2, 1.270755),
    Sketcher.Constraint("DistanceY", 12, 2, 12, 1, 2.758468),
    Sketcher.Constraint("DistanceY", 16, 2, 16, 1, 4.184193),
    Sketcher.Constraint("DistanceY", 20, 2, 20, 1, 3.099402),
    Sketcher.Constraint("DistanceY", 0, 2, -1, 1, 4.228722),
    Sketcher.Constraint("DistanceY", -1, 1, 4, 2, 6.433222),
    Sketcher.Constraint("DistanceY", -1, 1, 8, 2, 6.34024),
    Sketcher.Constraint("DistanceX", -1, 1, 12, 2, 4.968929),
    Sketcher.Constraint("DistanceY", -1, 1, 12, 2, 2.868909),
    Sketcher.Constraint("DistanceY", 18, 2, -1, 1, 4.383692),
    Sketcher.Constraint("DistanceX", 20, 2, -1, 1, 13.59649),
    Sketcher.Constraint("DistanceY", -1, 1, 22, 2, 3.79873),
    Sketcher.Constraint("DistanceX", 25, 2, -1, 1, 8.730429),
    Sketcher.Constraint("DistanceX", 2, 2, 4, 2, 4.132091),
    Sketcher.Constraint("DistanceX", 2, 2, 8, 2, 0.133862),
])
pad8 = body.newObject("PartDesign::Pad", "Pad007")
pad8.Profile = sketch22
pad8.Length = 1.5

sketch23 = body.newObject("Sketcher::SketchObject", "Sketch022")
sketch23.AttachmentSupport = (doc.getObject("XZ_Plane"), [""])
sketch23.MapMode = "FlatFace"
sketch23.AttachmentOffset = App.Placement(Vector(0, 0, -1.2), App.Rotation())
sketch23.addGeometry([
    Part.Circle(Vector(11.2, -9.1, 0), Vector(0, 0, 1), 1),
    Part.Circle(Vector(11.2, -9.1, 0), Vector(0, 0, 1), 0.7),
    Part.Circle(Vector(13.7, -9.1, 0), Vector(0, 0, 1), 1),
    Part.Circle(Vector(13.7, -9.1, 0), Vector(0, 0, 1), 0.7),
    Part.Circle(Vector(13.7, -6.6, 0), Vector(0, 0, 1), 1),
    Part.Circle(Vector(13.7, -6.6, 0), Vector(0, 0, 1), 0.7),
    Part.Circle(Vector(11.2, -6.6, 0), Vector(0, 0, 1), 1),
    Part.Circle(Vector(11.2, -6.6, 0), Vector(0, 0, 1), 0.7),
    Part.Circle(Vector(11.2, -4, 0), Vector(0, 0, 1), 1),
    Part.Circle(Vector(11.2, -4, 0), Vector(0, 0, 1), 0.7),
    Part.Circle(Vector(13.7, -4, 0), Vector(0, 0, 1), 1),
    Part.Circle(Vector(13.7, -4, 0), Vector(0, 0, 1), 0.7),
    Part.Circle(Vector(13.7, -1.5, 0), Vector(0, 0, 1), 1),
    Part.Circle(Vector(13.7, -1.5, 0), Vector(0, 0, 1), 0.7),
    Part.Circle(Vector(11.2, -1.5, 0), Vector(0, 0, 1), 1),
    Part.Circle(Vector(11.2, -1.5, 0), Vector(0, 0, 1), 0.7),
    Part.Circle(Vector(11.2, 1, 0), Vector(0, 0, 1), 1),
    Part.Circle(Vector(11.2, 1, 0), Vector(0, 0, 1), 0.7),
    Part.Circle(Vector(11.2, 3.6, 0), Vector(0, 0, 1), 1),
    Part.Circle(Vector(11.2, 3.6, 0), Vector(0, 0, 1), 0.7),
    Part.Circle(Vector(13.7, 3.6, 0), Vector(0, 0, 1), 1),
    Part.Circle(Vector(13.7, 3.6, 0), Vector(0, 0, 1), 0.7),
    Part.Circle(Vector(13.7, 1, 0), Vector(0, 0, 1), 1),
    Part.Circle(Vector(13.7, 1, 0), Vector(0, 0, 1), 0.7),
], False)
sketch23.addConstraint([
    Sketcher.Constraint("Coincident", 1, 3, 0, 3),
    Sketcher.Constraint("Coincident", 3, 3, 2, 3),
    Sketcher.Constraint("Coincident", 5, 3, 4, 3),
    Sketcher.Constraint("Coincident", 7, 3, 6, 3),
    Sketcher.Constraint("Coincident", 9, 3, 8, 3),
    Sketcher.Constraint("Coincident", 11, 3, 10, 3),
    Sketcher.Constraint("Coincident", 13, 3, 12, 3),
    Sketcher.Constraint("Coincident", 15, 3, 14, 3),
    Sketcher.Constraint("Coincident", 17, 3, 16, 3),
    Sketcher.Constraint("Coincident", 19, 3, 18, 3),
    Sketcher.Constraint("Coincident", 21, 3, 20, 3),
    Sketcher.Constraint("Coincident", 23, 3, 22, 3),
    Sketcher.Constraint("Equal", 0, 2),
    Sketcher.Constraint("Equal", 1, 3),
    Sketcher.Constraint("Equal", 2, 4),
    Sketcher.Constraint("Equal", 3, 5),
    Sketcher.Constraint("Equal", 4, 6),
    Sketcher.Constraint("Equal", 5, 7),
    Sketcher.Constraint("Equal", 6, 8),
    Sketcher.Constraint("Equal", 7, 9),
    Sketcher.Constraint("Equal", 8, 10),
    Sketcher.Constraint("Equal", 9, 11),
    Sketcher.Constraint("Equal", 10, 12),
    Sketcher.Constraint("Equal", 11, 13),
    Sketcher.Constraint("Equal", 12, 14),
    Sketcher.Constraint("Equal", 13, 15),
    Sketcher.Constraint("Equal", 14, 16),
    Sketcher.Constraint("Equal", 15, 17),
    Sketcher.Constraint("Equal", 16, 18),
    Sketcher.Constraint("Equal", 17, 19),
    Sketcher.Constraint("Equal", 18, 20),
    Sketcher.Constraint("Equal", 19, 21),
    Sketcher.Constraint("Equal", 20, 22),
    Sketcher.Constraint("Equal", 21, 23),
    Sketcher.Constraint("Horizontal", 1, 3, 2, 3),
    Sketcher.Constraint("Horizontal", 5, 3, 6, 3),
    Sketcher.Constraint("Horizontal", 9, 3, 10, 3),
    Sketcher.Constraint("Horizontal", 13, 3, 14, 3),
    Sketcher.Constraint("Horizontal", 19, 3, 20, 3),
    Sketcher.Constraint("Horizontal", 17, 3, 22, 3),
    Sketcher.Constraint("Vertical", 3, 3, 4, 3),
    Sketcher.Constraint("Vertical", 1, 3, 6, 3),
    Sketcher.Constraint("Vertical", 7, 3, 8, 3),
    Sketcher.Constraint("Vertical", 5, 3, 10, 3),
    Sketcher.Constraint("Vertical", 11, 3, 12, 3),
    Sketcher.Constraint("Vertical", 9, 3, 14, 3),
    Sketcher.Constraint("Vertical", 15, 3, 16, 3),
    Sketcher.Constraint("Vertical", 17, 3, 18, 3),
    Sketcher.Constraint("Vertical", 13, 3, 20, 3),
    Sketcher.Constraint("Vertical", 21, 3, 22, 3),
    Sketcher.Constraint("Diameter", 0, 2.0),
    Sketcher.Constraint("Diameter", 1, 1.3),
    Sketcher.Constraint("DistanceX", -1, 1, 2, 3, 13.7),
    Sketcher.Constraint("DistanceX", -1, 1, 0, 3, 11.16),
    Sketcher.Constraint("DistanceY", 2, 3, 4, 3, 2.54),
    Sketcher.Constraint("DistanceY", 6, 3, 8, 3, 2.54),
    Sketcher.Constraint("DistanceY", 10, 3, 12, 3, 2.54),
    Sketcher.Constraint("DistanceY", 14, 3, 16, 3, 2.54),
    Sketcher.Constraint("DistanceY", 16, 3, 18, 3, 2.54),
    Sketcher.Constraint("DistanceY", 0, 3, -1, 1, 9.125),
])
pad9 = body.newObject("PartDesign::Pad", "Pad008")
pad9.Profile = sketch23
pad9.Length = 0.01
pad9.Reversed = True
doc.recompute()

datumplane = body.newObject("PartDesign::Plane", "DatumPlane")
datumplane.AttachmentSupport = (doc.getObject("XZ_Plane"), [""])
datumplane.MapMode = "FlatFace"
datumplane.AttachmentOffset = App.Placement(Vector(0, 0, -0.6), App.Rotation())
mirrored = body.newObject("PartDesign::Mirrored", "Mirrored")
mirrored.Originals = [pad9]
mirrored.MirrorPlane = (datumplane, [""])
body.Tip = mirrored

sketch24 = body.newObject("Sketcher::SketchObject", "Sketch023")
sketch24.AttachmentSupport = (doc.getObject("YZ_Plane"), [""])
sketch24.MapMode = "FlatFace"
sketch24.AttachmentOffset = App.Placement(Vector(0, 0, -14.4), App.Rotation())
sketch24.addGeometry([
    Part.Circle(Vector(2.2, -7.3, 0), Vector(0, 0, 1), 0.7),
    Part.Circle(Vector(2.2, 2.2, 0), Vector(0, 0, 1), 0.7),
], False)
sketch24.addConstraint([
    Sketcher.Constraint("Equal", 0, 1),
    Sketcher.Constraint("Vertical", 0, 3, 1, 3),
    Sketcher.Constraint("Diameter", 0, 1.4),
    Sketcher.Constraint("DistanceX", -1, 1, 0, 3, 2.2),
    Sketcher.Constraint("DistanceY", 0, 3, 1, 3, 9.5),
    Sketcher.Constraint("DistanceY", 0, 3, -1, 1, 7.325),
])
pad10 = body.newObject("PartDesign::Pad", "Pad009")
pad10.Profile = sketch24
pad10.Length = 4
pad10.Reversed = True

doc.recompute()
